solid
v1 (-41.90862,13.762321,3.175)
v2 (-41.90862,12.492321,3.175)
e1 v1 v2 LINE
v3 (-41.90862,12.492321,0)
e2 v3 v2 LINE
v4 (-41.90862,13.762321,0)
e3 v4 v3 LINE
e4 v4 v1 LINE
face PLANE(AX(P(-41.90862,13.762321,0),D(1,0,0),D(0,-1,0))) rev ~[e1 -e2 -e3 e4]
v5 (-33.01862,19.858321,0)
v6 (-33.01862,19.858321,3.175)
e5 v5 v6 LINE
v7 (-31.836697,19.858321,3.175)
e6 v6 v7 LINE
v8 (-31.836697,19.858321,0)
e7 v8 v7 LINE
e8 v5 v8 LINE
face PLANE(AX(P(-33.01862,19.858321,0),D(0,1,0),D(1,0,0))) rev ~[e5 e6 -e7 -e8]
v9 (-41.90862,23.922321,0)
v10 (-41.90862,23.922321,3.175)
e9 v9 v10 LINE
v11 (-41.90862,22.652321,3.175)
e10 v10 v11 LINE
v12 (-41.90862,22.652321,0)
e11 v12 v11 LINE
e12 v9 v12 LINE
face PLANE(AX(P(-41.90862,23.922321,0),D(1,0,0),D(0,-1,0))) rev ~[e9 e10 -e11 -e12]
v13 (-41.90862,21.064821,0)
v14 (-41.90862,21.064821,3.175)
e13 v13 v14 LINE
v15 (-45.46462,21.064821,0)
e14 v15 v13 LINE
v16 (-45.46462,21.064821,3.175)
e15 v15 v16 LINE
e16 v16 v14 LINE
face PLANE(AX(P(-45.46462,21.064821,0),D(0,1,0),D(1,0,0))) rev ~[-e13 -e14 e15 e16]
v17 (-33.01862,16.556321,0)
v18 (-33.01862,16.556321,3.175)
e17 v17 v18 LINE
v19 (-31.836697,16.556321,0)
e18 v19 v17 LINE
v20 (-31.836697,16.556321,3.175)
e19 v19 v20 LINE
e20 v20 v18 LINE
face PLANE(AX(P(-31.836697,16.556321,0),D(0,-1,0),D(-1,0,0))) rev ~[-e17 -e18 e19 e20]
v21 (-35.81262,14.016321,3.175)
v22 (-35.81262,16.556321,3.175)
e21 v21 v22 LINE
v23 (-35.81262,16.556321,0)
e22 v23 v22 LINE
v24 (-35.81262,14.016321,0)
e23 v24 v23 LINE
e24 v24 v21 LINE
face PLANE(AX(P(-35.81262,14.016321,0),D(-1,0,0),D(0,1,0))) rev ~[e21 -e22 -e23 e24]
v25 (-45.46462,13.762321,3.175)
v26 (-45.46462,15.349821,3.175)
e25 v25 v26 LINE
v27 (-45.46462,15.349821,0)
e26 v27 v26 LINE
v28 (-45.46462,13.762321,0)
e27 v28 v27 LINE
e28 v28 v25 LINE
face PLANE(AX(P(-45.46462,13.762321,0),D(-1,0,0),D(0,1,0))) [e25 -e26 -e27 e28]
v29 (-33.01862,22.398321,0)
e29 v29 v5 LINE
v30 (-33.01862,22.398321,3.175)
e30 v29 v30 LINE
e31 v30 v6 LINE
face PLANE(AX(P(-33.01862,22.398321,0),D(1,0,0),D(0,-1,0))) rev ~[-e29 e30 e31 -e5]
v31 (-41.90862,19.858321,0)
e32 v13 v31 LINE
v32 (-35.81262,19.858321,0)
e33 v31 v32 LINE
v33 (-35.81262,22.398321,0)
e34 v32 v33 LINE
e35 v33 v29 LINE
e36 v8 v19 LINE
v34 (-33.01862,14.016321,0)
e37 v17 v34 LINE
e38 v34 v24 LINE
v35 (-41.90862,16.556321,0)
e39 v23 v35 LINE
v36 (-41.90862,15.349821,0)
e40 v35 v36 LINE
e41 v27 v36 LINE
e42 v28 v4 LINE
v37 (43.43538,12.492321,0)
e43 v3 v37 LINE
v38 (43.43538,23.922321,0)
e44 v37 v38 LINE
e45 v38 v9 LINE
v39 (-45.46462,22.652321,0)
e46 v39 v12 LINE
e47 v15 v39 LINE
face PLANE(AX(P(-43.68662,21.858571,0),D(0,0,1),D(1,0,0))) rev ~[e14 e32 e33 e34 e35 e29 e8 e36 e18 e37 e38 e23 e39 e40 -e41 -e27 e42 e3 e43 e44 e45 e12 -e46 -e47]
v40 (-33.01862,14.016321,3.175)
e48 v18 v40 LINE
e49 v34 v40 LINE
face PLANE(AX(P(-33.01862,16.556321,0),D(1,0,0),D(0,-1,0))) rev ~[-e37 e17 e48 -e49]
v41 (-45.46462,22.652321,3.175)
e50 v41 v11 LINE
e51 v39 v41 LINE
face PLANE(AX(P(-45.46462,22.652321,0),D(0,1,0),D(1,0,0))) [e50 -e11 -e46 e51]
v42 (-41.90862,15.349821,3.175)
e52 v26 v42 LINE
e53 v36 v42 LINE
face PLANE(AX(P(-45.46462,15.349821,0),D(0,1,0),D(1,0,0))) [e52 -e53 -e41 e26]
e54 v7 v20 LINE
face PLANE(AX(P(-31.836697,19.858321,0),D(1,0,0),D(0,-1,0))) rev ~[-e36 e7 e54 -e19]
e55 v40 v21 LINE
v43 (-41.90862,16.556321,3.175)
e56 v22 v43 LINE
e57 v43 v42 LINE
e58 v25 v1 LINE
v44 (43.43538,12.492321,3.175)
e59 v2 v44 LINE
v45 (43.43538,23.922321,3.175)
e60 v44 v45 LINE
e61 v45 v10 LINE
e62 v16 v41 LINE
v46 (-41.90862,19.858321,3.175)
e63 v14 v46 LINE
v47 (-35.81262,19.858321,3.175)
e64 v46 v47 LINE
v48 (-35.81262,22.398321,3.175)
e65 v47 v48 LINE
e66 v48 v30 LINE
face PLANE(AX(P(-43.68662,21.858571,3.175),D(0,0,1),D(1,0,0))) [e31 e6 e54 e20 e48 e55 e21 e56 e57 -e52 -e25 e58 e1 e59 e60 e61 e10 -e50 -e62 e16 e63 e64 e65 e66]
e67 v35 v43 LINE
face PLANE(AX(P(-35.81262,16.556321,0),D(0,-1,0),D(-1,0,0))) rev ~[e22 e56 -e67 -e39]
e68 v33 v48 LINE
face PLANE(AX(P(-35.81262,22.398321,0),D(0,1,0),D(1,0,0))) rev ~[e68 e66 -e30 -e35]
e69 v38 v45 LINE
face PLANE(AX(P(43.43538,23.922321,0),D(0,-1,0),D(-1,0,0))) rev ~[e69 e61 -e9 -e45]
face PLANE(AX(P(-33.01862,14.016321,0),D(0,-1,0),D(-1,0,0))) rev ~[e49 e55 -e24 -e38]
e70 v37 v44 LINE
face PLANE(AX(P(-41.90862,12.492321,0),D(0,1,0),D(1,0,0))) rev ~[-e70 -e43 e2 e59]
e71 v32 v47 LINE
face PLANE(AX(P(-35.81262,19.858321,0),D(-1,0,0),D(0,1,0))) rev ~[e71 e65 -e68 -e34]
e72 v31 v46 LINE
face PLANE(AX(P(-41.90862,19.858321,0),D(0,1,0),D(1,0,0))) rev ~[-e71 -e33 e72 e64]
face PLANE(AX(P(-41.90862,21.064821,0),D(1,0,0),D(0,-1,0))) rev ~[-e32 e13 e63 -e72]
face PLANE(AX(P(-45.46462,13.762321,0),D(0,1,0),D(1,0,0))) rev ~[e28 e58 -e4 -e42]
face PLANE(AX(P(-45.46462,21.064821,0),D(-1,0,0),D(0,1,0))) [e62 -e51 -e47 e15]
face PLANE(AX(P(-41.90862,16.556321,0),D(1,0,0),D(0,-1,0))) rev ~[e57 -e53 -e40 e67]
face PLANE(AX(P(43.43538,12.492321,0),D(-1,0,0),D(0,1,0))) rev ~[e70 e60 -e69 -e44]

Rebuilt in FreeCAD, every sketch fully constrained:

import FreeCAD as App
import Part
import Sketcher

V = App.Vector
Q = App.Units.Quantity


def add_polygon(sketch, points):
    """Adds a closed chain of lines whose ends are joined by coincident constraints."""
    first, n = sketch.GeometryCount, len(points)
    for a, b in zip(points, points[1:] + points[:1]):
        sketch.addGeometry(Part.LineSegment(App.Vector(*a, 0), App.Vector(*b, 0)), False)
    for i in range(n):
        sketch.addConstraint(Sketcher.Constraint("Coincident", first + i, 2, first + (i + 1) % n, 1))

doc = App.newDocument("Part")
body = doc.addObject("PartDesign::Body", "Body")

# Sketch on XY plane
sketch1 = body.newObject("Sketcher::SketchObject", "Sketch")
sketch1.AttachmentSupport = (doc.getObject("XY_Plane"), [""])
sketch1.MapMode = "FlatFace"
add_polygon(sketch1, [(-45.46462, 22.652321), (-45.46462, 21.064821), (-41.90862, 21.064821), (-41.90862, 19.858321), (-35.81262, 19.858321), (-35.81262, 22.398321), (-33.01862, 22.398321), (-33.01862, 19.858321), (-31.836697, 19.858321), (-31.836697, 16.556321), (-33.01862, 16.556321), (-33.01862, 14.016321), (-35.81262, 14.016321), (-35.81262, 16.556321), (-41.90862, 16.556321), (-41.90862, 15.349821), (-45.46462, 15.349821), (-45.46462, 13.762321), (-41.90862, 13.762321), (-41.90862, 12.492321), (43.43538, 12.492321), (43.43538, 23.922321), (-41.90862, 23.922321), (-41.90862, 22.652321)])  # lines 0-23
sketch1.addConstraint([
    Sketcher.Constraint("Vertical", 0),
    Sketcher.Constraint("Horizontal", 1),
    Sketcher.Constraint("Vertical", 2),
    Sketcher.Constraint("Horizontal", 3),
    Sketcher.Constraint("Vertical", 4),
    Sketcher.Constraint("Horizontal", 5),
    Sketcher.Constraint("Vertical", 6),
    Sketcher.Constraint("Horizontal", 7),
    Sketcher.Constraint("Vertical", 8),
    Sketcher.Constraint("Horizontal", 9),
    Sketcher.Constraint("Vertical", 10),
    Sketcher.Constraint("Horizontal", 11),
    Sketcher.Constraint("Vertical", 12),
    Sketcher.Constraint("Horizontal", 13),
    Sketcher.Constraint("Vertical", 14),
    Sketcher.Constraint("Horizontal", 15),
    Sketcher.Constraint("Vertical", 16),
    Sketcher.Constraint("Horizontal", 17),
    Sketcher.Constraint("Vertical", 18),
    Sketcher.Constraint("Horizontal", 19),
    Sketcher.Constraint("Vertical", 20),
    Sketcher.Constraint("Horizontal", 21),
    Sketcher.Constraint("Vertical", 22),
    Sketcher.Constraint("Horizontal", 23),
    Sketcher.Constraint("Horizontal", 3, 2, 6, 2),
    Sketcher.Constraint("Horizontal", 9, 2, 12, 2),
    Sketcher.Constraint("Vertical", 6, 2, 9, 2),
    Sketcher.Constraint("Vertical", 4, 2, 11, 2),
    Sketcher.Constraint("Vertical", 2, 2, 13, 2),
    Sketcher.Constraint("Vertical", 0, 2, 15, 2),
    Sketcher.Constraint("Vertical", 14, 2, 17, 2),
    Sketcher.Constraint("Vertical", 18, 2, 21, 2),
    Sketcher.Constraint("Equal", 6, 10),
    Sketcher.Constraint("Equal", 2, 14),
    Sketcher.Constraint("Equal", 0, 16),
    Sketcher.Constraint("Equal", 18, 22),
    Sketcher.Constraint("DistanceY", 4, 1, 4, 2, Q("0.1 in")),
    Sketcher.Constraint("DistanceX", 1, 1, 1, 2, Q("0.14 in")),
    Sketcher.Constraint("DistanceX", 3, 1, 3, 2, Q("0.24 in")),
    Sketcher.Constraint("DistanceX", 5, 1, 5, 2, Q("0.11 in")),
    Sketcher.Constraint("DistanceX", 19, 1, 19, 2, Q("3.36 in")),
    Sketcher.Constraint("DistanceY", 8, 2, 8, 1, Q("0.13 in")),
    Sketcher.Constraint("DistanceY", 18, 2, 18, 1, Q("0.05 in")),
    Sketcher.Constraint("DistanceY", 20, 1, 20, 2, Q("0.45 in")),
    Sketcher.Constraint("DistanceY", 0, 2, 0, 1, Q("0.0625 in")),
    Sketcher.Constraint("DistanceX", 7, 1, 7, 2, 1.181923),
    Sketcher.Constraint("DistanceX", 0, 2, -1, 1, 45.46462),
    Sketcher.Constraint("DistanceY", -1, 1, 0, 2, 21.064821),
])
pad1 = body.newObject("PartDesign::Pad", "Pad")
pad1.Profile = sketch1
pad1.Length = Q("0.125 in")

doc.recompute()
